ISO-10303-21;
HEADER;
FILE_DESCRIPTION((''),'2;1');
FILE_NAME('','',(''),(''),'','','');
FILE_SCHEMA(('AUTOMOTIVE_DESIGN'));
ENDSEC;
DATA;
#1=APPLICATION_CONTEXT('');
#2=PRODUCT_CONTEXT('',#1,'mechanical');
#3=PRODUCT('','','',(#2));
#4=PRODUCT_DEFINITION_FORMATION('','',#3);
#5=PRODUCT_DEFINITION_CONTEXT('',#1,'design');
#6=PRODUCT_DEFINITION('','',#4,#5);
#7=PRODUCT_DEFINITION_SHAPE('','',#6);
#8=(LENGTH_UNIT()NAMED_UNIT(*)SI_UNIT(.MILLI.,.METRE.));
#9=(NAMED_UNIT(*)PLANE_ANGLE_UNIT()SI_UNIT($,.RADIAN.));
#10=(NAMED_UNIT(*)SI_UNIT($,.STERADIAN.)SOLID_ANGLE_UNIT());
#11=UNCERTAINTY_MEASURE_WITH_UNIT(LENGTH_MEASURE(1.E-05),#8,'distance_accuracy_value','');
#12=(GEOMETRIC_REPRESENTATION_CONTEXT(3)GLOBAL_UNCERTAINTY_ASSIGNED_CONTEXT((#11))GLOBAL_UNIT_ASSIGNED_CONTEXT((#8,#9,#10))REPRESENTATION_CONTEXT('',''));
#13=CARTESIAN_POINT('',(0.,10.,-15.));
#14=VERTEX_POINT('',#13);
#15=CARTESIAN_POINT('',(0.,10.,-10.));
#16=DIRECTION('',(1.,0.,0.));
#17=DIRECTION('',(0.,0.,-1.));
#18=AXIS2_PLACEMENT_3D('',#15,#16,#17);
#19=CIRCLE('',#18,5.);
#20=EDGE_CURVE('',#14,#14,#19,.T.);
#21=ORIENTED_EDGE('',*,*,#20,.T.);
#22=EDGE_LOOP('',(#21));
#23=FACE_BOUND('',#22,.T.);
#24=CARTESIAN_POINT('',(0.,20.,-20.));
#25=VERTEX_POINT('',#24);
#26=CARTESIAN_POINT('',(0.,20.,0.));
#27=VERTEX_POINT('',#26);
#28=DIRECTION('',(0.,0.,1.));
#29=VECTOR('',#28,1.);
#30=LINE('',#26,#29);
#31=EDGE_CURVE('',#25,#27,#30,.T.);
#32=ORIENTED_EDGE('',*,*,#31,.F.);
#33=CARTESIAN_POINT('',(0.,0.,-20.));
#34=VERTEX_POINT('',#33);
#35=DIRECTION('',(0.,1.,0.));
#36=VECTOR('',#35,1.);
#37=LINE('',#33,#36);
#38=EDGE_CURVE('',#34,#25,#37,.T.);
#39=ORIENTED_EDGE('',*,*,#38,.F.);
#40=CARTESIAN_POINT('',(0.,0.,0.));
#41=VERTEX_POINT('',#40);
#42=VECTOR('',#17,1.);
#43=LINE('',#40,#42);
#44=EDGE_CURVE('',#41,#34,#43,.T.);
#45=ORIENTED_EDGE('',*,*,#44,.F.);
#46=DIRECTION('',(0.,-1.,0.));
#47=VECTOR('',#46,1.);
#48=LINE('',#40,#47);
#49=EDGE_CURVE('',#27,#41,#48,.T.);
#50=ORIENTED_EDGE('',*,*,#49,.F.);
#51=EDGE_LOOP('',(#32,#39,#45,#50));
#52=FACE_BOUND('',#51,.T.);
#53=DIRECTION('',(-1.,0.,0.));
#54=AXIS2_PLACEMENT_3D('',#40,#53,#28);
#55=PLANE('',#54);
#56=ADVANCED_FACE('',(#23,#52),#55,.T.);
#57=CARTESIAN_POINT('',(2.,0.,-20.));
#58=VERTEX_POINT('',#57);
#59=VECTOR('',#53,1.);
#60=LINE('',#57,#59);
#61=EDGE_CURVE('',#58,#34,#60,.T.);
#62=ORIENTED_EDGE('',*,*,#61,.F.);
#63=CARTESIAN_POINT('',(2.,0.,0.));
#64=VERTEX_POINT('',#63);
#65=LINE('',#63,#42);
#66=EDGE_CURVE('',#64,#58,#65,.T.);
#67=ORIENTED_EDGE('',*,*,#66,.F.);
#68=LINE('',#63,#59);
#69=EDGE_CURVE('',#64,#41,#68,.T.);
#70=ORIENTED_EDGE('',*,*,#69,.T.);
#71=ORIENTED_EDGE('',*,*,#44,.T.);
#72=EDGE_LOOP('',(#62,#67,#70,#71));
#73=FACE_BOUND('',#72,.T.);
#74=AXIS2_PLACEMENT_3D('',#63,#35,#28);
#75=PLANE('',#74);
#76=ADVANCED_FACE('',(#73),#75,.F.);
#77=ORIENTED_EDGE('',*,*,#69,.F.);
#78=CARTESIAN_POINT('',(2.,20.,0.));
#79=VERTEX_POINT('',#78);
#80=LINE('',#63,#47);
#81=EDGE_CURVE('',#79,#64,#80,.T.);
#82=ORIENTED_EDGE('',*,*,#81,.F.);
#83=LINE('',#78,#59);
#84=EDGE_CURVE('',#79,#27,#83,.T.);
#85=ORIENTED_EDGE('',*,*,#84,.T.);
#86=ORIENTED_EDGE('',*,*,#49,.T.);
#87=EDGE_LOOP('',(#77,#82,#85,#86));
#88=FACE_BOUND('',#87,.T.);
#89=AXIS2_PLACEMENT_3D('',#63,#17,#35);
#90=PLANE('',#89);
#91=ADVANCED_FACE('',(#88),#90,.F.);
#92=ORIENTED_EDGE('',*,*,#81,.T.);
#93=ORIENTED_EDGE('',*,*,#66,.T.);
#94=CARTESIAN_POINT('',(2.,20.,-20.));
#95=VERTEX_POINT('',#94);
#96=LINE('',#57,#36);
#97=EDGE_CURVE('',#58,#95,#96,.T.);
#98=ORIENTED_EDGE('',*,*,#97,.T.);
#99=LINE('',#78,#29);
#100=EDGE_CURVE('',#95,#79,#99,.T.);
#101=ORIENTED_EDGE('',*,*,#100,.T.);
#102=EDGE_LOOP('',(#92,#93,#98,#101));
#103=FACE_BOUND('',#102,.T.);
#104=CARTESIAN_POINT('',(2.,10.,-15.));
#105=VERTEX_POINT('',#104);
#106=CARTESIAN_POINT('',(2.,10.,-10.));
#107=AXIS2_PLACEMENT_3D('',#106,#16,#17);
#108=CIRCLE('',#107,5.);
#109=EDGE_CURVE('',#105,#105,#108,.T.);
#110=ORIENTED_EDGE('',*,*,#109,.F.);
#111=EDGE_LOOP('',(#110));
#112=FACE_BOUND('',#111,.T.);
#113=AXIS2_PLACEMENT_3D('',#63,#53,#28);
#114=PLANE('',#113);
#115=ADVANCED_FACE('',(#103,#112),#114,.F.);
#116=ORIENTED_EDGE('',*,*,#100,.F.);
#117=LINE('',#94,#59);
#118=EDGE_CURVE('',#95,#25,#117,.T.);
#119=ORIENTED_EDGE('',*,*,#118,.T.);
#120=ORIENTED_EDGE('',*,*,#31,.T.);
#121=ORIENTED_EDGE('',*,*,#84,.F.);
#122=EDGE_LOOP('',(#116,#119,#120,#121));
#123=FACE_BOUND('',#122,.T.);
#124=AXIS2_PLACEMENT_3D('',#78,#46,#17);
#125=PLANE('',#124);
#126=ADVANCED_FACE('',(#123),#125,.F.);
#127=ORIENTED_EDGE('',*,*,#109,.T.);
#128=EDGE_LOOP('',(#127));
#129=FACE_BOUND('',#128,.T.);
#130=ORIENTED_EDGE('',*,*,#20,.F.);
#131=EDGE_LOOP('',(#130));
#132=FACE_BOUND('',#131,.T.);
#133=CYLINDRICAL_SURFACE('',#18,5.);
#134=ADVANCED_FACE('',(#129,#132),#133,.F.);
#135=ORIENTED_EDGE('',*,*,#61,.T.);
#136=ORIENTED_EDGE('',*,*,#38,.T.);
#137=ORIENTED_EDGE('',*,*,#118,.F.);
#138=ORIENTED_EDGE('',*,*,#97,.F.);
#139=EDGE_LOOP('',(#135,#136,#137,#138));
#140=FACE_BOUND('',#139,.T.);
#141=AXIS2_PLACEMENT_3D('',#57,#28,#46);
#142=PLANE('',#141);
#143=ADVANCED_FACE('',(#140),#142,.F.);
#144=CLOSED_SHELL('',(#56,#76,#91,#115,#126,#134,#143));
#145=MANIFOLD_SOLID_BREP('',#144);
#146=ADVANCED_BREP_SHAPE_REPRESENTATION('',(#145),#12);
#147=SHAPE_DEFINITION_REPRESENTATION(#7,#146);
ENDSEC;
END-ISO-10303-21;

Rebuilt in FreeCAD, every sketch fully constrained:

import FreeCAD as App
import Part
import Sketcher

V = App.Vector


def add_polygon(sketch, points):
    """Adds a closed chain of lines whose ends are joined by coincident constraints."""
    first, n = sketch.GeometryCount, len(points)
    for a, b in zip(points, points[1:] + points[:1]):
        sketch.addGeometry(Part.LineSegment(App.Vector(*a, 0), App.Vector(*b, 0)), False)
    for i in range(n):
        sketch.addConstraint(Sketcher.Constraint("Coincident", first + i, 2, first + (i + 1) % n, 1))

doc = App.newDocument("Part")
body = doc.addObject("PartDesign::Body", "Body")

sketch1 = doc.addObject("Sketcher::SketchObject", "Sketch")
body.addObject(sketch1)
sketch1.AttachmentSupport = (doc.YZ_Plane, [""])
sketch1.MapMode = "FlatFace"
add_polygon(sketch1, [(20, 0), (0, 0), (0, -20), (20, -20)])
sketch1.addConstraint(Sketcher.Constraint("Horizontal", 0))
sketch1.addConstraint(Sketcher.Constraint("Vertical", 1))
sketch1.addConstraint(Sketcher.Constraint("Horizontal", 2))
sketch1.addConstraint(Sketcher.Constraint("Vertical", 3))
sketch1.addConstraint(Sketcher.Constraint("Coincident", 0, 2, -1, 1))
sketch1.addConstraint(Sketcher.Constraint("Equal", 2, 1))
sketch1.addConstraint(Sketcher.Constraint("DistanceX", 0, 2, 0, 1, 20.0))
pad1 = doc.addObject("PartDesign::Pad", "Pad")
body.addObject(pad1)
pad1.Profile = sketch1
pad1.Length = 2

sketch2 = doc.addObject("Sketcher::SketchObject", "Sketch001")
body.addObject(sketch2)
sketch2.AttachmentSupport = (doc.YZ_Plane, [""])
sketch2.MapMode = "FlatFace"
sketch2.AttachmentOffset = App.Placement(V(0, 0, 2), App.Rotation())
sketch2.addGeometry(Part.Circle(V(10, -10, 0), V(0, 0, 1), 5), False)
sketch2.addConstraint(Sketcher.Constraint("Diameter", 0, 10.0))
sketch2.addConstraint(Sketcher.Constraint("DistanceX", -1, 1, 0, 3, 10.0))
sketch2.addConstraint(Sketcher.Constraint("DistanceY", 0, 3, -1, 1, 10.0))
pocket1 = doc.addObject("PartDesign::Pocket", "Pocket")
body.addObject(pocket1)
pocket1.Profile = sketch2
pocket1.Type = "ThroughAll"

doc.recompute()
